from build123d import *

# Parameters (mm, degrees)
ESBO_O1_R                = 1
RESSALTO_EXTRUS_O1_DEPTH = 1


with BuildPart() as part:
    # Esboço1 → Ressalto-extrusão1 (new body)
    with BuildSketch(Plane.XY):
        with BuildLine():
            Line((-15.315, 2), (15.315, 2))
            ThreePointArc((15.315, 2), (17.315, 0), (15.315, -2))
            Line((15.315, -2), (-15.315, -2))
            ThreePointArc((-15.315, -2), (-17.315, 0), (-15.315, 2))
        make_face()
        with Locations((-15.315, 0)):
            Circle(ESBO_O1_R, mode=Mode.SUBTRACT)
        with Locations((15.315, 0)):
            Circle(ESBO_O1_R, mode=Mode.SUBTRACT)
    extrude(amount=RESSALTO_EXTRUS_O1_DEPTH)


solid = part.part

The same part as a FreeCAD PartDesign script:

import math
import FreeCAD as App
import Part
import Sketcher
from FreeCAD import Vector
Q = App.Units.Quantity

doc = App.newDocument("Part")
params = doc.addObject("Spreadsheet::Sheet", "Params")
for row, (alias, value) in enumerate([
    ("sketch1_diameter", "2 mm"),
    ("sketch1_radius", "2 mm"),
    ("sketch1_width", "30.63 mm"),
    ("pad1_length", "1 mm"),
], start=1):
    params.set(f"A{row}", alias)
    params.set(f"B{row}", "=" + value)
    params.setAlias(f"B{row}", alias)

body = doc.addObject("PartDesign::Body", "Body")

sketch1 = body.newObject("Sketcher::SketchObject", "Sketch")
sketch1.AttachmentSupport = (doc.getObject("XY_Plane"), [""])
sketch1.MapMode = "FlatFace"
sketch1.addGeometry(Part.LineSegment(Vector(15.3, 2, 0), Vector(-15.3, 2, 0)), False)
sketch1.addGeometry(Part.ArcOfCircle(Part.Circle(Vector(-15.3, 0, 0), Vector(0, 0, 1), 2), math.radians(90), math.radians(270)), False)
sketch1.addGeometry(Part.LineSegment(Vector(-15.3, -2, 0), Vector(15.3, -2, 0)), False)
sketch1.addGeometry(Part.ArcOfCircle(Part.Circle(Vector(15.3, 0, 0), Vector(0, 0, 1), 2), math.radians(-90), math.radians(90)), False)
sketch1.addGeometry(Part.Circle(Vector(15.3, 0, 0), Vector(0, 0, 1), 1), False)
sketch1.addGeometry(Part.Circle(Vector(-15.3, 0, 0), Vector(0, 0, 1), 1), False)
sketch1.addConstraint(Sketcher.Constraint("Tangent", 0, 2, 1, 1))
sketch1.addConstraint(Sketcher.Constraint("Tangent", 1, 2, 2, 1))
sketch1.addConstraint(Sketcher.Constraint("Tangent", 2, 2, 3, 1))
sketch1.addConstraint(Sketcher.Constraint("Tangent", 3, 2, 0, 1))
sketch1.addConstraint(Sketcher.Constraint("Horizontal", 0))
sketch1.addConstraint(Sketcher.Constraint("Horizontal", 2))
sketch1.addConstraint(Sketcher.Constraint("Coincident", 4, 3, 3, 3))
sketch1.addConstraint(Sketcher.Constraint("Coincident", 5, 3, 1, 3))
sketch1.addConstraint(Sketcher.Constraint("Equal", 4, 5))
sketch1.addConstraint(Sketcher.Constraint("Symmetric", 1, 3, 3, 3, -1, 1))
sketch1.addConstraint(Sketcher.Constraint("Diameter", 4, Q("2 mm")))
sketch1.addConstraint(Sketcher.Constraint("Radius", 1, Q("2 mm")))
sketch1.addConstraint(Sketcher.Constraint("DistanceX", 0, 2, 0, 1, Q("30.63 mm")))
sketch1.setExpression("Constraints[10]", "Params.sketch1_diameter")
sketch1.setExpression("Constraints[11]", "Params.sketch1_radius")
sketch1.setExpression("Constraints[12]", "Params.sketch1_width")
pad1 = body.newObject("PartDesign::Pad", "Pad")
pad1.Profile = sketch1
pad1.setExpression("Length", "Params.pad1_length")

doc.recompute()
